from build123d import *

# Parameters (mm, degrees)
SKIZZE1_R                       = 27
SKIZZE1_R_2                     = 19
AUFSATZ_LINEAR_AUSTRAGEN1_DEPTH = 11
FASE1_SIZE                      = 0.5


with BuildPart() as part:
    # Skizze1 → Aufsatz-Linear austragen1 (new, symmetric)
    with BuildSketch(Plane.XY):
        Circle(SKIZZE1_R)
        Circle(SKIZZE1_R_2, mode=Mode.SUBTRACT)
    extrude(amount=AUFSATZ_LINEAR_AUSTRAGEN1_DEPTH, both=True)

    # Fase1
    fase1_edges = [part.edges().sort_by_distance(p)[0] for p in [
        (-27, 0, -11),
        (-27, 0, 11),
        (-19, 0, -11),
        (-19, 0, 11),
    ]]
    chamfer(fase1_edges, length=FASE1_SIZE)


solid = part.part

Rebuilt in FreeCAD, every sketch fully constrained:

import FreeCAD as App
import Part
import Sketcher
Q = App.Units.Quantity


def edges_at(feature, points):
    """Names of the edges that pass closest to the given points."""
    edges = feature.Shape.Edges
    near = lambda p: min(range(len(edges)), key=lambda i: edges[i].distToShape(Part.Vertex(*p))[0])
    return sorted({f"Edge{near(p) + 1}" for p in points})

doc = App.newDocument("Part")
body = doc.addObject("PartDesign::Body", "Body")

sketch1 = body.newObject("Sketcher::SketchObject", "Sketch")
sketch1.AttachmentSupport = (doc.getObject("XY_Plane"), [""])
sketch1.MapMode = "FlatFace"
sketch1.addGeometry([
    Part.Circle(App.Vector(0, 0, 0), App.Vector(0, 0, 1), 27),
    Part.Circle(App.Vector(0, 0, 0), App.Vector(0, 0, 1), 19),
], False)
sketch1.addConstraint([
    Sketcher.Constraint("Coincident", 0, 3, -1, 1),
    Sketcher.Constraint("Coincident", 1, 3, -1, 1),
    Sketcher.Constraint("Diameter", 0, Q("54 mm")),
    Sketcher.Constraint("Diameter", 1, Q("38 mm")),
])
pad1 = body.newObject("PartDesign::Pad", "Pad")
pad1.Profile = sketch1
pad1.Length = 22
pad1.Midplane = True
doc.recompute()

chamfer = body.newObject("PartDesign::Chamfer", "Chamfer")
chamfer.Base = (pad1, edges_at(pad1, [
    (-27, 0, -11),
    (-27, 0, 11),
    (-19, 0, -11),
    (-19, 0, 11),
]))
chamfer.Size = 0.5

doc.recompute()
